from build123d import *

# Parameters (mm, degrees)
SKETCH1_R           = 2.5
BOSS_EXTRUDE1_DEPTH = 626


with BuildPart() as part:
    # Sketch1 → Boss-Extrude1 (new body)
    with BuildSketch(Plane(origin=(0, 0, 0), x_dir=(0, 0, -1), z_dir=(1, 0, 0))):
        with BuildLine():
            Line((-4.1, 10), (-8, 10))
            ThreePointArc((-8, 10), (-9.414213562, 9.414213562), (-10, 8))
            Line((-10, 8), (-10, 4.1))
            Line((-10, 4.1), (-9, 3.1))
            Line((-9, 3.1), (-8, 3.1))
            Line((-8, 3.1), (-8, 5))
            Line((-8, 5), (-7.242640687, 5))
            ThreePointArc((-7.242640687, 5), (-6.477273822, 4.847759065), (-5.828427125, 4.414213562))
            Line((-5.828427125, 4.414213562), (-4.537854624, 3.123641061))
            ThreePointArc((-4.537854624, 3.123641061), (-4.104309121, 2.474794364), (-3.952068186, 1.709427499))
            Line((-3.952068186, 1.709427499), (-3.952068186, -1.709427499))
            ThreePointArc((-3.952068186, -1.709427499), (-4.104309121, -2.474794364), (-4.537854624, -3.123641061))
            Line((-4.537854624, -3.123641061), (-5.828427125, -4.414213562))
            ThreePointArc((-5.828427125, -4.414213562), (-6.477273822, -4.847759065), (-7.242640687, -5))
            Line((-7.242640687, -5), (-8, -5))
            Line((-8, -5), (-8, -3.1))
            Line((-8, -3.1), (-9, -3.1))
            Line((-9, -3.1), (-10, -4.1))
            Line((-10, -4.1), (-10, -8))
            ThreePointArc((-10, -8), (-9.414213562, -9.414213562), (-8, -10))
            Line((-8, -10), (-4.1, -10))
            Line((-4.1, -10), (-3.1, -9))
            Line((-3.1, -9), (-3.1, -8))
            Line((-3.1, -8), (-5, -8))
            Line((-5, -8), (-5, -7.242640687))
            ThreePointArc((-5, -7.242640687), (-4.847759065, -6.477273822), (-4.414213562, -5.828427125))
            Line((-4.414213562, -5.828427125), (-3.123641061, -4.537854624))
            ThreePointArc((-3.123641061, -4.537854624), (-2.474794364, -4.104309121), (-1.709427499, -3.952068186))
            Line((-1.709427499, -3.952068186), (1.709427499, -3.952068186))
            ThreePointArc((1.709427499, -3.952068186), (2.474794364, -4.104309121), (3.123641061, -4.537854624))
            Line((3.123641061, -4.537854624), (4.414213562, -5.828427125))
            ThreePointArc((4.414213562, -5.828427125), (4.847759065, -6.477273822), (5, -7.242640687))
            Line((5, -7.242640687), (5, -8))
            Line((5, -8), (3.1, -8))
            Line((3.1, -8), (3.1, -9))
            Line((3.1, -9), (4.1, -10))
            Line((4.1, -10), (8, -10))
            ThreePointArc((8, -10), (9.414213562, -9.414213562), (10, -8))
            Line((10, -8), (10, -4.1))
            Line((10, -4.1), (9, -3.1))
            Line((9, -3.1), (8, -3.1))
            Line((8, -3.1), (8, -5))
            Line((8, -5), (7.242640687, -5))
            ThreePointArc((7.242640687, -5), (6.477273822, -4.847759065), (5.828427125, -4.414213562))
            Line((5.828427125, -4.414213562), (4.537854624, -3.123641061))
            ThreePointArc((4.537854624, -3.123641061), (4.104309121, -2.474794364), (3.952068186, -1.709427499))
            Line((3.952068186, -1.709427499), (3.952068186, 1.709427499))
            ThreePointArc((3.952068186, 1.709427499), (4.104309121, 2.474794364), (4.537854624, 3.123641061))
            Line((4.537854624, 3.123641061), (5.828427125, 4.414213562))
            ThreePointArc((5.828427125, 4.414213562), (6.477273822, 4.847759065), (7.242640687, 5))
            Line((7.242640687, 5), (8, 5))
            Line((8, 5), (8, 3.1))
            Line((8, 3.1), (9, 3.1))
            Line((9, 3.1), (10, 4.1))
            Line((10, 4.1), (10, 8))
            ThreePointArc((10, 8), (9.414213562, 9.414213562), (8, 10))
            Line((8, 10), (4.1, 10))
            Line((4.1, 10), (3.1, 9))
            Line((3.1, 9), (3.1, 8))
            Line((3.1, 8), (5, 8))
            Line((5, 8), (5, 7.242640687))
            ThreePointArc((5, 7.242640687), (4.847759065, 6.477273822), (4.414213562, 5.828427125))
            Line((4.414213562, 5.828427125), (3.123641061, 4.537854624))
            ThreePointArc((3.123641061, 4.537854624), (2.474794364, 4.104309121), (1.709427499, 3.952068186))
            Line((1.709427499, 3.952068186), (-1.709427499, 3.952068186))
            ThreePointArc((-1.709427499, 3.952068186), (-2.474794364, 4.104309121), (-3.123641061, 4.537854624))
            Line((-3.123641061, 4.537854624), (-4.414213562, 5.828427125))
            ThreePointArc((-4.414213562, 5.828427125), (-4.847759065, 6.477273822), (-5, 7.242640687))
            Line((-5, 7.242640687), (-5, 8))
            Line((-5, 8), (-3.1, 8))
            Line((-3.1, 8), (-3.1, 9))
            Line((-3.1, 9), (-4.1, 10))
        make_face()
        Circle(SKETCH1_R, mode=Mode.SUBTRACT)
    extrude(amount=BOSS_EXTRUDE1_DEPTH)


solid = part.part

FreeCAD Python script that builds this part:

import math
import FreeCAD as App
import Part
import Sketcher

V = App.Vector

doc = App.newDocument("Part")
body = doc.addObject("PartDesign::Body", "Body")

# Sketch on YZ plane
sketch1 = body.newObject("Sketcher::SketchObject", "Sketch")
sketch1.AttachmentSupport = (doc.getObject("YZ_Plane"), [""])
sketch1.MapMode = "FlatFace"
sketch1.addGeometry([
    Part.LineSegment(V(10, 4.1, 0), V(10, 8, 0)),  # 0
    Part.ArcOfCircle(Part.Circle(V(8, 8, 0), V(0, 0, 1), 2), math.radians(0), math.radians(90)),  # 1
    Part.LineSegment(V(8, 10, 0), V(4.1, 10, 0)),  # 2
    Part.LineSegment(V(4.1, 10, 0), V(3.1, 9, 0)),  # 3
    Part.LineSegment(V(3.1, 9, 0), V(3.1, 8, 0)),  # 4
    Part.LineSegment(V(3.1, 8, 0), V(5, 8, 0)),  # 5
    Part.LineSegment(V(5, 8, 0), V(5, 7.2, 0)),  # 6
    Part.ArcOfCircle(Part.Circle(V(3, 7.2, 0), V(0, 0, 1), 2), math.radians(-45), math.radians(0)),  # 7
    Part.LineSegment(V(4.4, 5.8, 0), V(3.1, 4.5, 0)),  # 8
    Part.ArcOfCircle(Part.Circle(V(1.7, 6, 0), V(0, 0, 1), 2), math.radians(-90), math.radians(-45)),  # 9
    Part.LineSegment(V(1.7, 4, 0), V(-1.7, 4, 0)),  # 10
    Part.ArcOfCircle(Part.Circle(V(-1.7, 6, 0), V(0, 0, 1), 2), math.radians(-135), math.radians(-90)),  # 11
    Part.LineSegment(V(-3.1, 4.5, 0), V(-4.4, 5.8, 0)),  # 12
    Part.ArcOfCircle(Part.Circle(V(-3, 7.2, 0), V(0, 0, 1), 2), math.radians(180), math.radians(225)),  # 13
    Part.LineSegment(V(-5, 7.2, 0), V(-5, 8, 0)),  # 14
    Part.LineSegment(V(-5, 8, 0), V(-3.1, 8, 0)),  # 15
    Part.LineSegment(V(-3.1, 8, 0), V(-3.1, 9, 0)),  # 16
    Part.LineSegment(V(-3.1, 9, 0), V(-4.1, 10, 0)),  # 17
    Part.LineSegment(V(-4.1, 10, 0), V(-8, 10, 0)),  # 18
    Part.ArcOfCircle(Part.Circle(V(-8, 8, 0), V(0, 0, 1), 2), math.radians(90), math.radians(180)),  # 19
    Part.LineSegment(V(-10, 8, 0), V(-10, 4.1, 0)),  # 20
    Part.LineSegment(V(-10, 4.1, 0), V(-9, 3.1, 0)),  # 21
    Part.LineSegment(V(-9, 3.1, 0), V(-8, 3.1, 0)),  # 22
    Part.LineSegment(V(-8, 3.1, 0), V(-8, 5, 0)),  # 23
    Part.LineSegment(V(-8, 5, 0), V(-7.2, 5, 0)),  # 24
    Part.ArcOfCircle(Part.Circle(V(-7.2, 3, 0), V(0, 0, 1), 2), math.radians(45), math.radians(90)),  # 25
    Part.LineSegment(V(-5.8, 4.4, 0), V(-4.5, 3.1, 0)),  # 26
    Part.ArcOfCircle(Part.Circle(V(-6, 1.7, 0), V(0, 0, 1), 2), math.radians(0), math.radians(45)),  # 27
    Part.LineSegment(V(-4, 1.7, 0), V(-4, -1.7, 0)),  # 28
    Part.ArcOfCircle(Part.Circle(V(-6, -1.7, 0), V(0, 0, 1), 2), math.radians(-45), math.radians(0)),  # 29
    Part.LineSegment(V(-4.5, -3.1, 0), V(-5.8, -4.4, 0)),  # 30
    Part.ArcOfCircle(Part.Circle(V(-7.2, -3, 0), V(0, 0, 1), 2), math.radians(-90), math.radians(-45)),  # 31
    Part.LineSegment(V(-7.2, -5, 0), V(-8, -5, 0)),  # 32
    Part.LineSegment(V(-8, -5, 0), V(-8, -3.1, 0)),  # 33
    Part.LineSegment(V(-8, -3.1, 0), V(-9, -3.1, 0)),  # 34
    Part.LineSegment(V(-9, -3.1, 0), V(-10, -4.1, 0)),  # 35
    Part.LineSegment(V(-10, -4.1, 0), V(-10, -8, 0)),  # 36
    Part.ArcOfCircle(Part.Circle(V(-8, -8, 0), V(0, 0, 1), 2), math.radians(-180), math.radians(-90)),  # 37
    Part.LineSegment(V(-8, -10, 0), V(-4.1, -10, 0)),  # 38
    Part.LineSegment(V(-4.1, -10, 0), V(-3.1, -9, 0)),  # 39
    Part.LineSegment(V(-3.1, -9, 0), V(-3.1, -8, 0)),  # 40
    Part.LineSegment(V(-3.1, -8, 0), V(-5, -8, 0)),  # 41
    Part.LineSegment(V(-5, -8, 0), V(-5, -7.2, 0)),  # 42
    Part.ArcOfCircle(Part.Circle(V(-3, -7.2, 0), V(0, 0, 1), 2), math.radians(135), math.radians(180)),  # 43
    Part.LineSegment(V(-4.4, -5.8, 0), V(-3.1, -4.5, 0)),  # 44
    Part.ArcOfCircle(Part.Circle(V(-1.7, -6, 0), V(0, 0, 1), 2), math.radians(90), math.radians(135)),  # 45
    Part.LineSegment(V(-1.7, -4, 0), V(1.7, -4, 0)),  # 46
    Part.ArcOfCircle(Part.Circle(V(1.7, -6, 0), V(0, 0, 1), 2), math.radians(45), math.radians(90)),  # 47
    Part.LineSegment(V(3.1, -4.5, 0), V(4.4, -5.8, 0)),  # 48
    Part.ArcOfCircle(Part.Circle(V(3, -7.2, 0), V(0, 0, 1), 2), math.radians(0), math.radians(45)),  # 49
    Part.LineSegment(V(5, -7.2, 0), V(5, -8, 0)),  # 50
    Part.LineSegment(V(5, -8, 0), V(3.1, -8, 0)),  # 51
    Part.LineSegment(V(3.1, -8, 0), V(3.1, -9, 0)),  # 52
    Part.LineSegment(V(3.1, -9, 0), V(4.1, -10, 0)),  # 53
    Part.LineSegment(V(4.1, -10, 0), V(8, -10, 0)),  # 54
    Part.ArcOfCircle(Part.Circle(V(8, -8, 0), V(0, 0, 1), 2), math.radians(-90), math.radians(0)),  # 55
    Part.LineSegment(V(10, -8, 0), V(10, -4.1, 0)),  # 56
    Part.LineSegment(V(10, -4.1, 0), V(9, -3.1, 0)),  # 57
    Part.LineSegment(V(9, -3.1, 0), V(8, -3.1, 0)),  # 58
    Part.LineSegment(V(8, -3.1, 0), V(8, -5, 0)),  # 59
    Part.LineSegment(V(8, -5, 0), V(7.2, -5, 0)),  # 60
    Part.ArcOfCircle(Part.Circle(V(7.2, -3, 0), V(0, 0, 1), 2), math.radians(-135), math.radians(-90)),  # 61
    Part.LineSegment(V(5.8, -4.4, 0), V(4.5, -3.1, 0)),  # 62
    Part.ArcOfCircle(Part.Circle(V(6, -1.7, 0), V(0, 0, 1), 2), math.radians(180), math.radians(225)),  # 63
    Part.LineSegment(V(4, -1.7, 0), V(4, 1.7, 0)),  # 64
    Part.ArcOfCircle(Part.Circle(V(6, 1.7, 0), V(0, 0, 1), 2), math.radians(135), math.radians(180)),  # 65
    Part.LineSegment(V(4.5, 3.1, 0), V(5.8, 4.4, 0)),  # 66
    Part.ArcOfCircle(Part.Circle(V(7.2, 3, 0), V(0, 0, 1), 2), math.radians(90), math.radians(135)),  # 67
    Part.LineSegment(V(7.2, 5, 0), V(8, 5, 0)),  # 68
    Part.LineSegment(V(8, 5, 0), V(8, 3.1, 0)),  # 69
    Part.LineSegment(V(8, 3.1, 0), V(9, 3.1, 0)),  # 70
    Part.LineSegment(V(9, 3.1, 0), V(10, 4.1, 0)),  # 71
    Part.Circle(V(0, 0, 0), V(0, 0, 1), 2.5),  # 72
], False)
sketch1.addConstraint([
    Sketcher.Constraint("Tangent", 0, 2, 1, 1),
    Sketcher.Constraint("Tangent", 1, 2, 2, 1),
    Sketcher.Constraint("Coincident", 2, 2, 3, 1),
    Sketcher.Constraint("Coincident", 3, 2, 4, 1),
    Sketcher.Constraint("Coincident", 4, 2, 5, 1),
    Sketcher.Constraint("Coincident", 5, 2, 6, 1),
    Sketcher.Constraint("Tangent", 6, 2, 7, 2),
    Sketcher.Constraint("Tangent", 7, 1, 8, 1),
    Sketcher.Constraint("Tangent", 8, 2, 9, 2),
    Sketcher.Constraint("Tangent", 9, 1, 10, 1),
    Sketcher.Constraint("Tangent", 10, 2, 11, 2),
    Sketcher.Constraint("Tangent", 11, 1, 12, 1),
    Sketcher.Constraint("Tangent", 12, 2, 13, 2),
    Sketcher.Constraint("Tangent", 13, 1, 14, 1),
    Sketcher.Constraint("Coincident", 14, 2, 15, 1),
    Sketcher.Constraint("Coincident", 15, 2, 16, 1),
    Sketcher.Constraint("Coincident", 16, 2, 17, 1),
    Sketcher.Constraint("Coincident", 17, 2, 18, 1),
    Sketcher.Constraint("Tangent", 18, 2, 19, 1),
    Sketcher.Constraint("Tangent", 19, 2, 20, 1),
    Sketcher.Constraint("Coincident", 20, 2, 21, 1),
    Sketcher.Constraint("Coincident", 21, 2, 22, 1),
    Sketcher.Constraint("Coincident", 22, 2, 23, 1),
    Sketcher.Constraint("Coincident", 23, 2, 24, 1),
    Sketcher.Constraint("Tangent", 24, 2, 25, 2),
    Sketcher.Constraint("Tangent", 25, 1, 26, 1),
    Sketcher.Constraint("Tangent", 26, 2, 27, 2),
    Sketcher.Constraint("Tangent", 27, 1, 28, 1),
    Sketcher.Constraint("Tangent", 28, 2, 29, 2),
    Sketcher.Constraint("Tangent", 29, 1, 30, 1),
    Sketcher.Constraint("Tangent", 30, 2, 31, 2),
    Sketcher.Constraint("Tangent", 31, 1, 32, 1),
    Sketcher.Constraint("Coincident", 32, 2, 33, 1),
    Sketcher.Constraint("Coincident", 33, 2, 34, 1),
    Sketcher.Constraint("Coincident", 34, 2, 35, 1),
    Sketcher.Constraint("Coincident", 35, 2, 36, 1),
    Sketcher.Constraint("Tangent", 36, 2, 37, 1),
    Sketcher.Constraint("Tangent", 37, 2, 38, 1),
    Sketcher.Constraint("Coincident", 38, 2, 39, 1),
    Sketcher.Constraint("Coincident", 39, 2, 40, 1),
    Sketcher.Constraint("Coincident", 40, 2, 41, 1),
    Sketcher.Constraint("Coincident", 41, 2, 42, 1),
    Sketcher.Constraint("Tangent", 42, 2, 43, 2),
    Sketcher.Constraint("Tangent", 43, 1, 44, 1),
    Sketcher.Constraint("Tangent", 44, 2, 45, 2),
    Sketcher.Constraint("Tangent", 45, 1, 46, 1),
    Sketcher.Constraint("Tangent", 46, 2, 47, 2),
    Sketcher.Constraint("Tangent", 47, 1, 48, 1),
    Sketcher.Constraint("Tangent", 48, 2, 49, 2),
    Sketcher.Constraint("Tangent", 49, 1, 50, 1),
    Sketcher.Constraint("Coincident", 50, 2, 51, 1),
    Sketcher.Constraint("Coincident", 51, 2, 52, 1),
    Sketcher.Constraint("Coincident", 52, 2, 53, 1),
    Sketcher.Constraint("Coincident", 53, 2, 54, 1),
    Sketcher.Constraint("Tangent", 54, 2, 55, 1),
    Sketcher.Constraint("Tangent", 55, 2, 56, 1),
    Sketcher.Constraint("Coincident", 56, 2, 57, 1),
    Sketcher.Constraint("Coincident", 57, 2, 58, 1),
    Sketcher.Constraint("Coincident", 58, 2, 59, 1),
    Sketcher.Constraint("Coincident", 59, 2, 60, 1),
    Sketcher.Constraint("Tangent", 60, 2, 61, 2),
    Sketcher.Constraint("Tangent", 61, 1, 62, 1),
    Sketcher.Constraint("Tangent", 62, 2, 63, 2),
    Sketcher.Constraint("Tangent", 63, 1, 64, 1),
    Sketcher.Constraint("Tangent", 64, 2, 65, 2),
    Sketcher.Constraint("Tangent", 65, 1, 66, 1),
    Sketcher.Constraint("Tangent", 66, 2, 67, 2),
    Sketcher.Constraint("Tangent", 67, 1, 68, 1),
    Sketcher.Constraint("Coincident", 68, 2, 69, 1),
    Sketcher.Constraint("Coincident", 69, 2, 70, 1),
    Sketcher.Constraint("Coincident", 70, 2, 71, 1),
    Sketcher.Constraint("Coincident", 71, 2, 0, 1),
    Sketcher.Constraint("Vertical", 0),
    Sketcher.Constraint("Horizontal", 2),
    Sketcher.Constraint("Vertical", 4),
    Sketcher.Constraint("Horizontal", 5),
    Sketcher.Constraint("Vertical", 6),
    Sketcher.Constraint("Horizontal", 10),
    Sketcher.Constraint("Vertical", 14),
    Sketcher.Constraint("Horizontal", 15),
    Sketcher.Constraint("Vertical", 16),
    Sketcher.Constraint("Horizontal", 18),
    Sketcher.Constraint("Vertical", 20),
    Sketcher.Constraint("Horizontal", 22),
    Sketcher.Constraint("Vertical", 23),
    Sketcher.Constraint("Horizontal", 24),
    Sketcher.Constraint("Vertical", 28),
    Sketcher.Constraint("Horizontal", 32),
    Sketcher.Constraint("Vertical", 33),
    Sketcher.Constraint("Horizontal", 34),
    Sketcher.Constraint("Vertical", 36),
    Sketcher.Constraint("Horizontal", 38),
    Sketcher.Constraint("Vertical", 40),
    Sketcher.Constraint("Horizontal", 41),
    Sketcher.Constraint("Vertical", 42),
    Sketcher.Constraint("Horizontal", 46),
    Sketcher.Constraint("Vertical", 50),
    Sketcher.Constraint("Horizontal", 51),
    Sketcher.Constraint("Vertical", 52),
    Sketcher.Constraint("Horizontal", 54),
    Sketcher.Constraint("Vertical", 56),
    Sketcher.Constraint("Horizontal", 58),
    Sketcher.Constraint("Vertical", 59),
    Sketcher.Constraint("Horizontal", 60),
    Sketcher.Constraint("Vertical", 64),
    Sketcher.Constraint("Horizontal", 68),
    Sketcher.Constraint("Vertical", 69),
    Sketcher.Constraint("Horizontal", 70),
    Sketcher.Constraint("Coincident", 72, 3, -1, 1),
    Sketcher.Constraint("Equal", 1, 7),
    Sketcher.Constraint("Equal", 7, 9),
    Sketcher.Constraint("Equal", 9, 11),
    Sketcher.Constraint("Equal", 11, 13),
    Sketcher.Constraint("Equal", 13, 19),
    Sketcher.Constraint("Equal", 19, 25),
    Sketcher.Constraint("Equal", 25, 27),
    Sketcher.Constraint("Equal", 27, 29),
    Sketcher.Constraint("Equal", 29, 31),
    Sketcher.Constraint("Equal", 31, 37),
    Sketcher.Constraint("Equal", 37, 43),
    Sketcher.Constraint("Equal", 43, 45),
    Sketcher.Constraint("Equal", 45, 47),
    Sketcher.Constraint("Equal", 47, 49),
    Sketcher.Constraint("Equal", 49, 55),
    Sketcher.Constraint("Equal", 55, 61),
    Sketcher.Constraint("Equal", 61, 63),
    Sketcher.Constraint("Equal", 63, 65),
    Sketcher.Constraint("Equal", 65, 67),
    Sketcher.Constraint("Symmetric", 1, 3, 37, 3, -1, 1),
    Sketcher.Constraint("Symmetric", 7, 3, 43, 3, -1, 1),
    Sketcher.Constraint("Symmetric", 9, 3, 45, 3, -1, 1),
    Sketcher.Constraint("Symmetric", 13, 3, 49, 3, -1, 1),
    Sketcher.Constraint("Symmetric", 19, 3, 55, 3, -1, 1),
    Sketcher.Constraint("Symmetric", 25, 3, 61, 3, -1, 1),
    Sketcher.Constraint("Symmetric", 27, 3, 63, 3, -1, 1),
    Sketcher.Constraint("Symmetric", 31, 3, 67, 3, -1, 1),
    Sketcher.Constraint("Symmetric", 3, 2, 39, 2, -1, 1),
    Sketcher.Constraint("Symmetric", 15, 2, 51, 2, -1, 1),
    Sketcher.Constraint("Symmetric", 21, 2, 57, 2, -1, 1),
    Sketcher.Constraint("Symmetric", 33, 2, 69, 2, -1, 1),
    Sketcher.Constraint("Symmetric", 7, 3, 13, 3, -2),
    Sketcher.Constraint("Symmetric", 1, 3, 19, 3, -2),
    Sketcher.Constraint("Symmetric", 31, 3, 61, 3, -2),
    Sketcher.Constraint("Symmetric", 4, 2, 15, 2, -2),
    Sketcher.Constraint("Symmetric", 34, 2, 57, 2, -2),
    Sketcher.Constraint("Parallel", 3, 8),
    Sketcher.Constraint("Perpendicular", 8, 12),
    Sketcher.Constraint("Parallel", 12, 17),
    Sketcher.Constraint("Parallel", 17, 21),
    Sketcher.Constraint("Parallel", 21, 26),
    Sketcher.Constraint("Perpendicular", 26, 30),
    Sketcher.Constraint("Parallel", 30, 35),
    Sketcher.Constraint("Parallel", 35, 39),
    Sketcher.Constraint("Perpendicular", 44, 48),
    Sketcher.Constraint("Parallel", 48, 53),
    Sketcher.Constraint("Parallel", 53, 57),
    Sketcher.Constraint("Perpendicular", 62, 66),
    Sketcher.Constraint("Parallel", 66, 71),
    Sketcher.Constraint("Horizontal", 29, 3, 63, 3),
    Sketcher.Constraint("Horizontal", 0, 2, 4, 2),
    Sketcher.Constraint("Horizontal", 3, 2, 16, 2),
    Sketcher.Constraint("Horizontal", 36, 2, 40, 2),
    Sketcher.Constraint("Horizontal", 39, 2, 52, 2),
    Sketcher.Constraint("Horizontal", 20, 2, 71, 2),
    Sketcher.Constraint("Vertical", 18, 2, 22, 2),
    Sketcher.Constraint("Vertical", 23, 2, 32, 2),
    Sketcher.Constraint("Vertical", 54, 2, 58, 2),
    Sketcher.Constraint("Equal", 54, 0),
    Sketcher.Constraint("Equal", 70, 4),
    Sketcher.Constraint("Equal", 68, 6),
    Sketcher.Constraint("Equal", 51, 23),
    Sketcher.Constraint("Equal", 46, 28),
    Sketcher.Constraint("Equal", 12, 26),
    Sketcher.Constraint("Diameter", 72, 5.0),
    Sketcher.Constraint("Radius", 1, 2.0),
    Sketcher.Constraint("DistanceX", 22, 1, 22, 2, 1.0),
    Sketcher.Constraint("DistanceX", 2, 2, 2, 1, 3.9),
    Sketcher.Constraint("DistanceX", 5, 1, 5, 2, 1.9),
    Sketcher.Constraint("DistanceX", -1, 1, 1, 3, 8.0),
    Sketcher.Constraint("DistanceX", 24, 1, 24, 2, 0.757359),
    Sketcher.Constraint("DistanceX", 10, 2, 10, 1, 3.418855),
])
pad1 = body.newObject("PartDesign::Pad", "Pad")
pad1.Profile = sketch1
pad1.Length = 626

doc.recompute()
